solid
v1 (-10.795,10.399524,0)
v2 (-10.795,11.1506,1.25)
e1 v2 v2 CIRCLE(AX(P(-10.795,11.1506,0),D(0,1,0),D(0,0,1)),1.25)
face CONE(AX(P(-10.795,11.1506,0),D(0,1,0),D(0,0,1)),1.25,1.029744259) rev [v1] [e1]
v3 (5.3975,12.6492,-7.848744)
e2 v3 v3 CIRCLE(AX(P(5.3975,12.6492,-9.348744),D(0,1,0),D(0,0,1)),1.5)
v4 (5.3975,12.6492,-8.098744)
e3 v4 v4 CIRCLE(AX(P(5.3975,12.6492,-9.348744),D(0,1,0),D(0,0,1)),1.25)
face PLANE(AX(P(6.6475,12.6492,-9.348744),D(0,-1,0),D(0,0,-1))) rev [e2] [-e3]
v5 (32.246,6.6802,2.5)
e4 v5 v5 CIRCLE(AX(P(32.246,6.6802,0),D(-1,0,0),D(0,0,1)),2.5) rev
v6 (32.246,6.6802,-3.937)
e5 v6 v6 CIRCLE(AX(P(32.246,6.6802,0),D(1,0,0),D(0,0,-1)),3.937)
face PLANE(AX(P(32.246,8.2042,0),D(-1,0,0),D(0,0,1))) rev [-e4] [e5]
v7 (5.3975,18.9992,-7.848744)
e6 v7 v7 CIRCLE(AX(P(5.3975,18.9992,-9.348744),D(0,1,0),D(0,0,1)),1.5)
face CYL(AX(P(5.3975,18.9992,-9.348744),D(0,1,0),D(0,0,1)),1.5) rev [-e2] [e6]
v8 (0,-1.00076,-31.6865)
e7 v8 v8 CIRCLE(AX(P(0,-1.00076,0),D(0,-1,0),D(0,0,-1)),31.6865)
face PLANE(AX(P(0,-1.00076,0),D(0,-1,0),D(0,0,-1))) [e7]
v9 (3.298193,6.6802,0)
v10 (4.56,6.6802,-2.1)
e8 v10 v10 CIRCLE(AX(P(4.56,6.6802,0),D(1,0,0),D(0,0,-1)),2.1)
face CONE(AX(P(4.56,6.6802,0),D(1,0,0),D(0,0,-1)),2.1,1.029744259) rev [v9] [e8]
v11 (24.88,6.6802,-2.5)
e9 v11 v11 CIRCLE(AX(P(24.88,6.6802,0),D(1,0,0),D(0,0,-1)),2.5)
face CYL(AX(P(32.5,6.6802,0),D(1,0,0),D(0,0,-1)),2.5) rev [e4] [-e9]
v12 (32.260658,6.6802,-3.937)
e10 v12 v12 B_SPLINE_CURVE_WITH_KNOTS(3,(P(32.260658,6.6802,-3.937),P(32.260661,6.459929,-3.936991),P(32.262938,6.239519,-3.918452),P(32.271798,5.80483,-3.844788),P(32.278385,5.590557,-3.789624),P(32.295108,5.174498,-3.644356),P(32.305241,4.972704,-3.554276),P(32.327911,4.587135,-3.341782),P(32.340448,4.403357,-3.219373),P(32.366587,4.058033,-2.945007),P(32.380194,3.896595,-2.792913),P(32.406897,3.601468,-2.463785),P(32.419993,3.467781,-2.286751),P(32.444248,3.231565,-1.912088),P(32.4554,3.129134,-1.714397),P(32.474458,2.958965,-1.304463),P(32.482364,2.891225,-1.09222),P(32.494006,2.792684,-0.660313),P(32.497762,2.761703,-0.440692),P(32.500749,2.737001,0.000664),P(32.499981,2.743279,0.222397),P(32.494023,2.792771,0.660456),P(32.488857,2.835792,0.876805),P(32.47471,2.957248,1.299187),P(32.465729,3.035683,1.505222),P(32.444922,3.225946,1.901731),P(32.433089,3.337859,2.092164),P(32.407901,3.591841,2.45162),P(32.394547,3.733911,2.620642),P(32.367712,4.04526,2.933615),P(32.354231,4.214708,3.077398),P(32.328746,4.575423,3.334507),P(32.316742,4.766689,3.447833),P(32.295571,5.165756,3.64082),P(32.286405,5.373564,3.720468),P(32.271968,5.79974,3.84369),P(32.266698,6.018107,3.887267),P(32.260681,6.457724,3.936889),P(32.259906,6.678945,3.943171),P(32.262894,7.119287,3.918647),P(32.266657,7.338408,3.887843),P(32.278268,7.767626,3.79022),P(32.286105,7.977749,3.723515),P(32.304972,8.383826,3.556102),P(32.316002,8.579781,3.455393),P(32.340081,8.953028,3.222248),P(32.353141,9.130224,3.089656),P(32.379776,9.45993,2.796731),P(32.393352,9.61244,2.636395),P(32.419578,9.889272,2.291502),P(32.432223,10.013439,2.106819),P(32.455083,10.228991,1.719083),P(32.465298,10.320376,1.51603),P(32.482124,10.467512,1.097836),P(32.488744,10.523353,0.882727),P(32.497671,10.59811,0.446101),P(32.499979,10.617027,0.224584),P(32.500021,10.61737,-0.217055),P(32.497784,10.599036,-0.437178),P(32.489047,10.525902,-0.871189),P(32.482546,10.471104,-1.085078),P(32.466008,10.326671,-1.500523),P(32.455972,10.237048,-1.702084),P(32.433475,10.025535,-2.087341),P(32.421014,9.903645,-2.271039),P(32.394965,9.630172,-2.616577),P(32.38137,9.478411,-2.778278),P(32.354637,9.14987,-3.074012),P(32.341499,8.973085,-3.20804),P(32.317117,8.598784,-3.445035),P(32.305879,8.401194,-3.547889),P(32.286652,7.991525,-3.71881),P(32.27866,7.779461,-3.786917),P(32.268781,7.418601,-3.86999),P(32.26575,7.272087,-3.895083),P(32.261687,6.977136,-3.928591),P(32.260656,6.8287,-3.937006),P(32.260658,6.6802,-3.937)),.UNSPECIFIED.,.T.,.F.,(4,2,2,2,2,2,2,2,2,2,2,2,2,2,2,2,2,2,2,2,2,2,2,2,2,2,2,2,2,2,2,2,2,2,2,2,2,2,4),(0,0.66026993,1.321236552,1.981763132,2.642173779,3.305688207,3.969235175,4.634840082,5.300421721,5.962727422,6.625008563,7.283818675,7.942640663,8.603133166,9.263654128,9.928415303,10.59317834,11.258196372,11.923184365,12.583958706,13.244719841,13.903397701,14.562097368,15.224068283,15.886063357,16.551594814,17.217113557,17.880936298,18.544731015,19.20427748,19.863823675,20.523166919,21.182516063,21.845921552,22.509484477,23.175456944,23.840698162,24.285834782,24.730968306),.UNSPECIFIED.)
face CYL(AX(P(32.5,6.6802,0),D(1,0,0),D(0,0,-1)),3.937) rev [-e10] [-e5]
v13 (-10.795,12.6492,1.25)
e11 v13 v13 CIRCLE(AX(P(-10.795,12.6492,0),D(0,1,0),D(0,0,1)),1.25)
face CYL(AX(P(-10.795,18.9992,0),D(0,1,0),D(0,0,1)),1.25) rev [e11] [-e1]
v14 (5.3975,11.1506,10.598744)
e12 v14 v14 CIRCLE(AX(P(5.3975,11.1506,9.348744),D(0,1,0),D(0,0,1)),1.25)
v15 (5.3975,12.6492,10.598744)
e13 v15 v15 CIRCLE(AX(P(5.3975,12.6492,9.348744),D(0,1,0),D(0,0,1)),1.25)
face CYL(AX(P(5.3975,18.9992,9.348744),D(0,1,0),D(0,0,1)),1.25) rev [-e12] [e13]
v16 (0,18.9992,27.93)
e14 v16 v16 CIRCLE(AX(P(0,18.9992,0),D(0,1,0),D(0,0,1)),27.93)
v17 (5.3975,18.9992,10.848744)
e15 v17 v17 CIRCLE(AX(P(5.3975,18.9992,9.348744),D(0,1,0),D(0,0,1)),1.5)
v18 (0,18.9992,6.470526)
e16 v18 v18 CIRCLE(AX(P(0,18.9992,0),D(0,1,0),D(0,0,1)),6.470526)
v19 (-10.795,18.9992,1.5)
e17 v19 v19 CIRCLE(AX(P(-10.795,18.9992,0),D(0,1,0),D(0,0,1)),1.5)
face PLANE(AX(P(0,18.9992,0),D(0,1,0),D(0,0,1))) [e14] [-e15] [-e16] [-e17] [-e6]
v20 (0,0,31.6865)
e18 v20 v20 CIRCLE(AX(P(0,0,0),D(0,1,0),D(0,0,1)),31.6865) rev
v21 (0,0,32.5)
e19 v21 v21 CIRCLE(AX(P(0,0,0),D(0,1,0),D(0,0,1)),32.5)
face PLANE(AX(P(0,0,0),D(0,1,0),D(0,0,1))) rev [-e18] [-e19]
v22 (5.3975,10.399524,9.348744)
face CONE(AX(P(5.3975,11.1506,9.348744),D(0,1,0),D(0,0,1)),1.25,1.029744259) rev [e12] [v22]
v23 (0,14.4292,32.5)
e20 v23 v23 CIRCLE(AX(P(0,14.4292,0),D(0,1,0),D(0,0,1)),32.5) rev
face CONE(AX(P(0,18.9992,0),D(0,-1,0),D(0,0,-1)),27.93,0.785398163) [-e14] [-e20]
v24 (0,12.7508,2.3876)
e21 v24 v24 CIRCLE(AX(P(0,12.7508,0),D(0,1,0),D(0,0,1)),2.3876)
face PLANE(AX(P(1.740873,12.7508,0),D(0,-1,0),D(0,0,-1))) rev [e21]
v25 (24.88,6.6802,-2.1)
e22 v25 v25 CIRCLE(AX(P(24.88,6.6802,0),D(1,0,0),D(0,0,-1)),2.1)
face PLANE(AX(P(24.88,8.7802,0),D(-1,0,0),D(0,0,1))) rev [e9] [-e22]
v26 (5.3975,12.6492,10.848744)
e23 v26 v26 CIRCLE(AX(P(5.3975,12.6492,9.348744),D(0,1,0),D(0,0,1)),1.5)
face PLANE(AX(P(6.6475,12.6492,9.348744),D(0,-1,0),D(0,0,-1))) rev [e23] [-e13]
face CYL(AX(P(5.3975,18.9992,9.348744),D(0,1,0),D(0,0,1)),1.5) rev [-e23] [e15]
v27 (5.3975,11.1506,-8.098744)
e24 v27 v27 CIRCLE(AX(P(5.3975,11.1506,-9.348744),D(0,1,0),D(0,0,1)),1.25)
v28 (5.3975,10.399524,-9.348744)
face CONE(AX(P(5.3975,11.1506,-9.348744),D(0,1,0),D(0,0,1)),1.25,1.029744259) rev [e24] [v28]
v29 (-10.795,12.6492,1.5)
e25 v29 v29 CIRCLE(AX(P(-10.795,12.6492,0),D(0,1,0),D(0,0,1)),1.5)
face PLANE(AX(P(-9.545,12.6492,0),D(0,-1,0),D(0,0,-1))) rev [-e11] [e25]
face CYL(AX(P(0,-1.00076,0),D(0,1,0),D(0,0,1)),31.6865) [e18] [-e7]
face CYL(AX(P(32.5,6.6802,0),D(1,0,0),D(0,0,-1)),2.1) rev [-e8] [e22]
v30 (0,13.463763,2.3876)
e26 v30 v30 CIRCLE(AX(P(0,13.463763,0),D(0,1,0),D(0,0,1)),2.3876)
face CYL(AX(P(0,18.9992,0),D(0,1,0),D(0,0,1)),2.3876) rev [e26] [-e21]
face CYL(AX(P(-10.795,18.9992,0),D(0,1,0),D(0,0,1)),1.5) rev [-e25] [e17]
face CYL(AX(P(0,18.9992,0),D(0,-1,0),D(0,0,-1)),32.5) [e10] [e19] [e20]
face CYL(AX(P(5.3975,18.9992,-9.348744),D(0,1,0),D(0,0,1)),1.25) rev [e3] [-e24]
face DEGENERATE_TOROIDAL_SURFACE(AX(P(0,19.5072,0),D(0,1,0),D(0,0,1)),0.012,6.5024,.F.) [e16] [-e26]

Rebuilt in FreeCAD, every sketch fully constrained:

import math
import FreeCAD as App
import Part
import Sketcher
from FreeCAD import Vector
Q = App.Units.Quantity


def edges_at(feature, points):
    """Names of the edges that pass closest to the given points."""
    edges = feature.Shape.Edges
    near = lambda p: min(range(len(edges)), key=lambda i: edges[i].distToShape(Part.Vertex(*p))[0])
    return sorted({f"Edge{near(p) + 1}" for p in points})

doc = App.newDocument("Part")
body = doc.addObject("PartDesign::Body", "Body")

# Sketch on XZ plane
sketch1 = body.newObject("Sketcher::SketchObject", "Sketch")
sketch1.AttachmentSupport = (doc.getObject("XZ_Plane"), [""])
sketch1.MapMode = "FlatFace"
sketch1.addGeometry(Part.Circle(Vector(0, 0, 0), Vector(0, 0, 1), 32), False)
sketch1.addConstraint([
    Sketcher.Constraint("Coincident", 0, 3, -1, 1),
    Sketcher.Constraint("Diameter", 0, 65.0),
])
pad1 = body.newObject("PartDesign::Pad", "Pad")
pad1.Profile = sketch1
pad1.Length = Q("0.748 in")
pad1.Reversed = True

# Sketch on XY plane
sketch2 = body.newObject("Sketcher::SketchObject", "Sketch001")
sketch2.AttachmentSupport = (doc.getObject("XY_Plane"), [""])
sketch2.MapMode = "FlatFace"
sketch2.addGeometry([
    Part.LineSegment(Vector(2.4, 12.8, 0), Vector(2.4, 13.5, 0)),  # 0
    Part.ArcOfCircle(Part.Circle(Vector(0, 19.5, 0), Vector(0, 0, 1), 6.5), math.radians(-68), math.radians(-4)),  # 1
    Part.LineSegment(Vector(6.5, 19, 0), Vector(0, 19, 0)),  # 2
    Part.LineSegment(Vector(0, 19, 0), Vector(0, 12.8, 0)),  # 3
    Part.LineSegment(Vector(0, 12.8, 0), Vector(2.4, 12.8, 0)),  # 4
], False)
sketch2.addConstraint([
    Sketcher.Constraint("Coincident", 0, 2, 1, 1),
    Sketcher.Constraint("Coincident", 1, 2, 2, 1),
    Sketcher.Constraint("Coincident", 2, 2, 3, 1),
    Sketcher.Constraint("Coincident", 3, 2, 4, 1),
    Sketcher.Constraint("Coincident", 4, 2, 0, 1),
    Sketcher.Constraint("Vertical", 0),
    Sketcher.Constraint("Horizontal", 2),
    Sketcher.Constraint("Vertical", 3),
    Sketcher.Constraint("Horizontal", 4),
    Sketcher.Constraint("PointOnObject", 2, 2, -2),
    Sketcher.Constraint("Radius", 1, Q("0.256 in")),
    Sketcher.Constraint("DistanceX", 4, 1, 4, 2, Q("0.094 in")),
    Sketcher.Constraint("DistanceY", 3, 2, 3, 1, Q("0.246 in")),
    Sketcher.Constraint("DistanceY", 1, 2, 1, 3, Q("0.02 in")),
    Sketcher.Constraint("DistanceY", -1, 1, 1, 3, Q("0.768 in")),
    Sketcher.Constraint("DistanceX", 1, 3, -1, 1, 0.012),
])
groove = body.newObject("PartDesign::Groove", "Groove")
groove.Profile = sketch2
groove.ReferenceAxis = (sketch2, ["V_Axis"])
groove.Angle = 360
doc.recompute()

chamfer = body.newObject("PartDesign::Chamfer", "Chamfer")
chamfer.Base = (groove, edges_at(groove, [(0, 18.999, -32.5)]))
chamfer.Size = 4.57

# Sketch on XZ plane
sketch3 = body.newObject("Sketcher::SketchObject", "Sketch002")
sketch3.AttachmentSupport = (doc.getObject("XZ_Plane"), [""])
sketch3.MapMode = "FlatFace"
sketch3.AttachmentOffset = App.Placement(Vector(0, 0, -0.748 * 25.4), App.Rotation())
sketch3.addGeometry([
    Part.Circle(Vector(5.4, -9.3, 0), Vector(0, 0, 1), 1.2),
    Part.Circle(Vector(-10.8, 0, 0), Vector(0, 0, 1), 1.2),
    Part.Circle(Vector(5.4, 9.3, 0), Vector(0, 0, 1), 1.2),
], False)
sketch3.addConstraint([
    Sketcher.Constraint("Equal", 0, 1),
    Sketcher.Constraint("Equal", 1, 2),
    Sketcher.Constraint("Symmetric", 0, 3, 2, 3, -1),
    Sketcher.Constraint("PointOnObject", 1, 3, -1),
    Sketcher.Constraint("Diameter", 0, 2.5),
    Sketcher.Constraint("DistanceX", 1, 3, -1, 1, Q("0.425 in")),
    Sketcher.Constraint("DistanceX", -1, 1, 0, 3, Q("0.2125 in")),
    Sketcher.Constraint("DistanceY", 0, 3, 2, 3, 18.697488),
])
doc.recompute()
hole = body.newObject("PartDesign::Hole", "Hole")
hole.Profile = sketch3
hole.ThreadType = "None"
hole.Diameter = 2.5
hole.DepthType = "Dimension"
hole.Depth = Q("0.309 in")
hole.DrillPoint = "Angled"
hole.DrillPointAngle = 118
hole.HoleCutType = "Counterbore"
hole.HoleCutDiameter = 3
hole.HoleCutDepth = Q("0.25 in")
hole.Reversed = True

# Sketch on YZ plane
sketch4 = body.newObject("Sketcher::SketchObject", "Sketch003")
sketch4.AttachmentSupport = (doc.getObject("YZ_Plane"), [""])
sketch4.MapMode = "FlatFace"
sketch4.AttachmentOffset = App.Placement(Vector(0, 0, 32.5), App.Rotation())
sketch4.addGeometry(Part.Circle(Vector(6.7, 0, 0), Vector(0, 0, 1), 2.1), False)
sketch4.addConstraint([
    Sketcher.Constraint("PointOnObject", 0, 3, -1),
    Sketcher.Constraint("Diameter", 0, 4.2),
    Sketcher.Constraint("DistanceX", -1, 1, 0, 3, Q("0.263 in")),
])
doc.recompute()
hole2 = body.newObject("PartDesign::Hole", "Hole001")
hole2.Profile = sketch4
hole2.ThreadType = "None"
hole2.Diameter = 4.2
hole2.DepthType = "Dimension"
hole2.Depth = Q("1.1 in")
hole2.DrillPoint = "Angled"
hole2.DrillPointAngle = 118
hole2.HoleCutType = "Counterbore"
hole2.HoleCutDiameter = 5
hole2.HoleCutDepth = Q("0.3 in")

# Sketch on YZ plane
sketch5 = body.newObject("Sketcher::SketchObject", "Sketch004")
sketch5.AttachmentSupport = (doc.getObject("YZ_Plane"), [""])
sketch5.MapMode = "FlatFace"
sketch5.AttachmentOffset = App.Placement(Vector(0, 0, 32.5), App.Rotation())
sketch5.addGeometry(Part.Circle(Vector(6.7, 0, 0), Vector(0, 0, 1), 1.5), False)
sketch5.addConstraint([
    Sketcher.Constraint("PointOnObject", 0, 3, -1),
    Sketcher.Constraint("Diameter", 0, Q("0.12 in")),
    Sketcher.Constraint("DistanceX", -1, 1, 0, 3, Q("0.263 in")),
])
doc.recompute()
hole3 = body.newObject("PartDesign::Hole", "Hole002")
hole3.Profile = sketch5
hole3.ThreadType = "None"
hole3.Diameter = Q("0.12 in")
hole3.DepthType = "Dimension"
hole3.Depth = Q("0.25 in")
hole3.DrillPoint = "Angled"
hole3.DrillPointAngle = 118
hole3.HoleCutType = "Counterbore"
hole3.HoleCutDiameter = Q("0.31 in")
hole3.HoleCutDepth = Q("0.01 in")

# Sketch on XZ plane
sketch6 = body.newObject("Sketcher::SketchObject", "Sketch005")
sketch6.AttachmentSupport = (doc.getObject("XZ_Plane"), [""])
sketch6.MapMode = "FlatFace"
sketch6.addGeometry(Part.Circle(Vector(0, 0, 0), Vector(0, 0, 1), 32), False)
sketch6.addConstraint([
    Sketcher.Constraint("Coincident", 0, 3, -1, 1),
    Sketcher.Constraint("Diameter", 0, Q("2.495 in")),
])
pad2 = body.newObject("PartDesign::Pad", "Pad001")
pad2.Profile = sketch6
pad2.Length = Q("0.0394 in")

doc.recompute()
